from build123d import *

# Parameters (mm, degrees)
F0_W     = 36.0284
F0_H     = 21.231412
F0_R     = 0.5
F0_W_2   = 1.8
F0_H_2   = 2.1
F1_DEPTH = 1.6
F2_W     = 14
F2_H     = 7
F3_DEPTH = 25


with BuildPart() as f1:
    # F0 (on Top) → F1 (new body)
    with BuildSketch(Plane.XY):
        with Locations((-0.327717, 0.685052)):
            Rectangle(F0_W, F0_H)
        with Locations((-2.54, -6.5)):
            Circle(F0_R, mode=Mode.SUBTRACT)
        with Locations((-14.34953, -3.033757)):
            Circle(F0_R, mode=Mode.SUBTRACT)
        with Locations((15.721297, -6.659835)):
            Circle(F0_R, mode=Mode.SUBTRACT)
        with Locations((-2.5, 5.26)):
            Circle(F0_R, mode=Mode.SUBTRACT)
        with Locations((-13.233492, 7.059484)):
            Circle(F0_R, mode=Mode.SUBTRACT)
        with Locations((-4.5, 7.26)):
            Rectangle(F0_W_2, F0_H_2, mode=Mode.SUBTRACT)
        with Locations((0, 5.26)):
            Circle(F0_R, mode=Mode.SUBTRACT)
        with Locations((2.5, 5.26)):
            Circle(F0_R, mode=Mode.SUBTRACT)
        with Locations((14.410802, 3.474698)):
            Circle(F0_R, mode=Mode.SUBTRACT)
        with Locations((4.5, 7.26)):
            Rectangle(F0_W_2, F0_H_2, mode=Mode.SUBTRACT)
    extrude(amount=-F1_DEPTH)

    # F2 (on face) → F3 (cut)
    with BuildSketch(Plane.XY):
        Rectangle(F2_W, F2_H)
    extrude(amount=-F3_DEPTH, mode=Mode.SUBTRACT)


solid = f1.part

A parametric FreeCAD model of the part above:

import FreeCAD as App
import Part
import Sketcher
from FreeCAD import Vector


def add_polygon(sketch, points):
    """Adds a closed chain of lines whose ends are joined by coincident constraints."""
    first, n = sketch.GeometryCount, len(points)
    for a, b in zip(points, points[1:] + points[:1]):
        sketch.addGeometry(Part.LineSegment(App.Vector(*a, 0), App.Vector(*b, 0)), False)
    for i in range(n):
        sketch.addConstraint(Sketcher.Constraint("Coincident", first + i, 2, first + (i + 1) % n, 1))

doc = App.newDocument("Part")
body = doc.addObject("PartDesign::Body", "Body")

sketch1 = body.newObject("Sketcher::SketchObject", "Sketch")
sketch1.AttachmentSupport = (doc.getObject("XY_Plane"), [""])
sketch1.MapMode = "FlatFace"
add_polygon(sketch1, [(-18.341917, 11.300758), (-18.341917, -9.930654), (17.686483, -9.930654), (17.686483, 11.300758)])
sketch1.addGeometry(Part.Circle(Vector(-2.54, -6.5, 0), Vector(0, 0, 1), 0.5), False)
sketch1.addGeometry(Part.Circle(Vector(-14.34953, -3.033757, 0), Vector(0, 0, 1), 0.5), False)
sketch1.addGeometry(Part.Circle(Vector(15.721297, -6.659835, 0), Vector(0, 0, 1), 0.5), False)
sketch1.addGeometry(Part.Circle(Vector(-13.233492, 7.059484, 0), Vector(0, 0, 1), 0.5), False)
sketch1.addGeometry(Part.Circle(Vector(-2.5, 5.26, 0), Vector(0, 0, 1), 0.5), False)
sketch1.addGeometry(Part.Circle(Vector(0, 5.26, 0), Vector(0, 0, 1), 0.5), False)
add_polygon(sketch1, [(-3.6, 6.21), (-5.4, 6.21), (-5.4, 8.31), (-3.6, 8.31)])
sketch1.addGeometry(Part.Circle(Vector(14.410802, 3.474698, 0), Vector(0, 0, 1), 0.5), False)
sketch1.addGeometry(Part.Circle(Vector(2.5, 5.26, 0), Vector(0, 0, 1), 0.5), False)
add_polygon(sketch1, [(5.4, 6.21), (3.6, 6.21), (3.6, 8.31), (5.4, 8.31)])
sketch1.addConstraint(Sketcher.Constraint("Vertical", 0))
sketch1.addConstraint(Sketcher.Constraint("Horizontal", 1))
sketch1.addConstraint(Sketcher.Constraint("Vertical", 2))
sketch1.addConstraint(Sketcher.Constraint("Horizontal", 3))
sketch1.addConstraint(Sketcher.Constraint("Horizontal", 10))
sketch1.addConstraint(Sketcher.Constraint("Vertical", 11))
sketch1.addConstraint(Sketcher.Constraint("Horizontal", 12))
sketch1.addConstraint(Sketcher.Constraint("Vertical", 13))
sketch1.addConstraint(Sketcher.Constraint("Horizontal", 16))
sketch1.addConstraint(Sketcher.Constraint("Vertical", 17))
sketch1.addConstraint(Sketcher.Constraint("Horizontal", 18))
sketch1.addConstraint(Sketcher.Constraint("Vertical", 19))
sketch1.addConstraint(Sketcher.Constraint("Equal", 4, 5))
sketch1.addConstraint(Sketcher.Constraint("Equal", 5, 6))
sketch1.addConstraint(Sketcher.Constraint("Equal", 6, 7))
sketch1.addConstraint(Sketcher.Constraint("Equal", 7, 8))
sketch1.addConstraint(Sketcher.Constraint("Equal", 8, 9))
sketch1.addConstraint(Sketcher.Constraint("Equal", 9, 14))
sketch1.addConstraint(Sketcher.Constraint("Equal", 14, 15))
sketch1.addConstraint(Sketcher.Constraint("Symmetric", 8, 3, 15, 3, -2))
sketch1.addConstraint(Sketcher.Constraint("Symmetric", 13, 2, 16, 2, -2))
sketch1.addConstraint(Sketcher.Constraint("Symmetric", 11, 2, 18, 2, -2))
sketch1.addConstraint(Sketcher.Constraint("PointOnObject", 9, 3, -2))
sketch1.addConstraint(Sketcher.Constraint("Horizontal", 8, 3, 9, 3))
sketch1.addConstraint(Sketcher.Constraint("Diameter", 4, 1.0))
sketch1.addConstraint(Sketcher.Constraint("DistanceX", 10, 2, 10, 1, 1.8))
sketch1.addConstraint(Sketcher.Constraint("DistanceY", 11, 1, 11, 2, 2.1))
sketch1.addConstraint(Sketcher.Constraint("DistanceX", 8, 3, 15, 3, 5.0))
sketch1.addConstraint(Sketcher.Constraint("DistanceY", 4, 3, -1, 1, 6.5))
sketch1.addConstraint(Sketcher.Constraint("DistanceX", 10, 2, -1, 1, 5.4))
sketch1.addConstraint(Sketcher.Constraint("DistanceX", 4, 3, -1, 1, 2.54))
sketch1.addConstraint(Sketcher.Constraint("DistanceY", -1, 1, 8, 3, 5.26))
sketch1.addConstraint(Sketcher.Constraint("DistanceY", -1, 1, 10, 2, 6.21))
sketch1.addConstraint(Sketcher.Constraint("DistanceX", 1, 1, 1, 2, 36.0284))
sketch1.addConstraint(Sketcher.Constraint("DistanceY", 0, 2, 0, 1, 21.231412))
sketch1.addConstraint(Sketcher.Constraint("DistanceY", -1, 1, 14, 3, 3.474698))
sketch1.addConstraint(Sketcher.Constraint("DistanceX", 4, 3, 14, 3, 16.950802))
sketch1.addConstraint(Sketcher.Constraint("DistanceX", 5, 3, -1, 1, 14.34953))
sketch1.addConstraint(Sketcher.Constraint("DistanceY", 6, 3, 5, 3, 3.626078))
sketch1.addConstraint(Sketcher.Constraint("DistanceY", 5, 3, 7, 3, 10.093241))
sketch1.addConstraint(Sketcher.Constraint("DistanceX", 7, 3, 4, 3, 10.693492))
sketch1.addConstraint(Sketcher.Constraint("DistanceX", 7, 3, 6, 3, 28.954789))
sketch1.addConstraint(Sketcher.Constraint("DistanceY", 0, 2, 7, 3, 16.990138))
sketch1.addConstraint(Sketcher.Constraint("DistanceX", 14, 3, 1, 2, 3.275681))
sketch1.addConstraint(Sketcher.Constraint("DistanceY", 14, 3, 2, 2, 7.82606))
pad1 = body.newObject("PartDesign::Pad", "Pad")
pad1.Profile = sketch1
pad1.Length = 1.6
pad1.Reversed = True

sketch2 = body.newObject("Sketcher::SketchObject", "Sketch001")
sketch2.AttachmentSupport = (doc.getObject("XY_Plane"), [""])
sketch2.MapMode = "FlatFace"
add_polygon(sketch2, [(-7, 3.5), (-7, -3.5), (7, -3.5), (7, 3.5)])
sketch2.addConstraint(Sketcher.Constraint("Vertical", 0))
sketch2.addConstraint(Sketcher.Constraint("Horizontal", 1))
sketch2.addConstraint(Sketcher.Constraint("Vertical", 2))
sketch2.addConstraint(Sketcher.Constraint("Horizontal", 3))
sketch2.addConstraint(Sketcher.Constraint("Symmetric", 0, 2, 2, 2, -1, 1))
sketch2.addConstraint(Sketcher.Constraint("DistanceX", 1, 1, 1, 2, 14.0))
sketch2.addConstraint(Sketcher.Constraint("DistanceY", 0, 2, 0, 1, 7.0))
pocket1 = body.newObject("PartDesign::Pocket", "Pocket")
pocket1.Profile = sketch2
pocket1.Length = 25

doc.recompute()
